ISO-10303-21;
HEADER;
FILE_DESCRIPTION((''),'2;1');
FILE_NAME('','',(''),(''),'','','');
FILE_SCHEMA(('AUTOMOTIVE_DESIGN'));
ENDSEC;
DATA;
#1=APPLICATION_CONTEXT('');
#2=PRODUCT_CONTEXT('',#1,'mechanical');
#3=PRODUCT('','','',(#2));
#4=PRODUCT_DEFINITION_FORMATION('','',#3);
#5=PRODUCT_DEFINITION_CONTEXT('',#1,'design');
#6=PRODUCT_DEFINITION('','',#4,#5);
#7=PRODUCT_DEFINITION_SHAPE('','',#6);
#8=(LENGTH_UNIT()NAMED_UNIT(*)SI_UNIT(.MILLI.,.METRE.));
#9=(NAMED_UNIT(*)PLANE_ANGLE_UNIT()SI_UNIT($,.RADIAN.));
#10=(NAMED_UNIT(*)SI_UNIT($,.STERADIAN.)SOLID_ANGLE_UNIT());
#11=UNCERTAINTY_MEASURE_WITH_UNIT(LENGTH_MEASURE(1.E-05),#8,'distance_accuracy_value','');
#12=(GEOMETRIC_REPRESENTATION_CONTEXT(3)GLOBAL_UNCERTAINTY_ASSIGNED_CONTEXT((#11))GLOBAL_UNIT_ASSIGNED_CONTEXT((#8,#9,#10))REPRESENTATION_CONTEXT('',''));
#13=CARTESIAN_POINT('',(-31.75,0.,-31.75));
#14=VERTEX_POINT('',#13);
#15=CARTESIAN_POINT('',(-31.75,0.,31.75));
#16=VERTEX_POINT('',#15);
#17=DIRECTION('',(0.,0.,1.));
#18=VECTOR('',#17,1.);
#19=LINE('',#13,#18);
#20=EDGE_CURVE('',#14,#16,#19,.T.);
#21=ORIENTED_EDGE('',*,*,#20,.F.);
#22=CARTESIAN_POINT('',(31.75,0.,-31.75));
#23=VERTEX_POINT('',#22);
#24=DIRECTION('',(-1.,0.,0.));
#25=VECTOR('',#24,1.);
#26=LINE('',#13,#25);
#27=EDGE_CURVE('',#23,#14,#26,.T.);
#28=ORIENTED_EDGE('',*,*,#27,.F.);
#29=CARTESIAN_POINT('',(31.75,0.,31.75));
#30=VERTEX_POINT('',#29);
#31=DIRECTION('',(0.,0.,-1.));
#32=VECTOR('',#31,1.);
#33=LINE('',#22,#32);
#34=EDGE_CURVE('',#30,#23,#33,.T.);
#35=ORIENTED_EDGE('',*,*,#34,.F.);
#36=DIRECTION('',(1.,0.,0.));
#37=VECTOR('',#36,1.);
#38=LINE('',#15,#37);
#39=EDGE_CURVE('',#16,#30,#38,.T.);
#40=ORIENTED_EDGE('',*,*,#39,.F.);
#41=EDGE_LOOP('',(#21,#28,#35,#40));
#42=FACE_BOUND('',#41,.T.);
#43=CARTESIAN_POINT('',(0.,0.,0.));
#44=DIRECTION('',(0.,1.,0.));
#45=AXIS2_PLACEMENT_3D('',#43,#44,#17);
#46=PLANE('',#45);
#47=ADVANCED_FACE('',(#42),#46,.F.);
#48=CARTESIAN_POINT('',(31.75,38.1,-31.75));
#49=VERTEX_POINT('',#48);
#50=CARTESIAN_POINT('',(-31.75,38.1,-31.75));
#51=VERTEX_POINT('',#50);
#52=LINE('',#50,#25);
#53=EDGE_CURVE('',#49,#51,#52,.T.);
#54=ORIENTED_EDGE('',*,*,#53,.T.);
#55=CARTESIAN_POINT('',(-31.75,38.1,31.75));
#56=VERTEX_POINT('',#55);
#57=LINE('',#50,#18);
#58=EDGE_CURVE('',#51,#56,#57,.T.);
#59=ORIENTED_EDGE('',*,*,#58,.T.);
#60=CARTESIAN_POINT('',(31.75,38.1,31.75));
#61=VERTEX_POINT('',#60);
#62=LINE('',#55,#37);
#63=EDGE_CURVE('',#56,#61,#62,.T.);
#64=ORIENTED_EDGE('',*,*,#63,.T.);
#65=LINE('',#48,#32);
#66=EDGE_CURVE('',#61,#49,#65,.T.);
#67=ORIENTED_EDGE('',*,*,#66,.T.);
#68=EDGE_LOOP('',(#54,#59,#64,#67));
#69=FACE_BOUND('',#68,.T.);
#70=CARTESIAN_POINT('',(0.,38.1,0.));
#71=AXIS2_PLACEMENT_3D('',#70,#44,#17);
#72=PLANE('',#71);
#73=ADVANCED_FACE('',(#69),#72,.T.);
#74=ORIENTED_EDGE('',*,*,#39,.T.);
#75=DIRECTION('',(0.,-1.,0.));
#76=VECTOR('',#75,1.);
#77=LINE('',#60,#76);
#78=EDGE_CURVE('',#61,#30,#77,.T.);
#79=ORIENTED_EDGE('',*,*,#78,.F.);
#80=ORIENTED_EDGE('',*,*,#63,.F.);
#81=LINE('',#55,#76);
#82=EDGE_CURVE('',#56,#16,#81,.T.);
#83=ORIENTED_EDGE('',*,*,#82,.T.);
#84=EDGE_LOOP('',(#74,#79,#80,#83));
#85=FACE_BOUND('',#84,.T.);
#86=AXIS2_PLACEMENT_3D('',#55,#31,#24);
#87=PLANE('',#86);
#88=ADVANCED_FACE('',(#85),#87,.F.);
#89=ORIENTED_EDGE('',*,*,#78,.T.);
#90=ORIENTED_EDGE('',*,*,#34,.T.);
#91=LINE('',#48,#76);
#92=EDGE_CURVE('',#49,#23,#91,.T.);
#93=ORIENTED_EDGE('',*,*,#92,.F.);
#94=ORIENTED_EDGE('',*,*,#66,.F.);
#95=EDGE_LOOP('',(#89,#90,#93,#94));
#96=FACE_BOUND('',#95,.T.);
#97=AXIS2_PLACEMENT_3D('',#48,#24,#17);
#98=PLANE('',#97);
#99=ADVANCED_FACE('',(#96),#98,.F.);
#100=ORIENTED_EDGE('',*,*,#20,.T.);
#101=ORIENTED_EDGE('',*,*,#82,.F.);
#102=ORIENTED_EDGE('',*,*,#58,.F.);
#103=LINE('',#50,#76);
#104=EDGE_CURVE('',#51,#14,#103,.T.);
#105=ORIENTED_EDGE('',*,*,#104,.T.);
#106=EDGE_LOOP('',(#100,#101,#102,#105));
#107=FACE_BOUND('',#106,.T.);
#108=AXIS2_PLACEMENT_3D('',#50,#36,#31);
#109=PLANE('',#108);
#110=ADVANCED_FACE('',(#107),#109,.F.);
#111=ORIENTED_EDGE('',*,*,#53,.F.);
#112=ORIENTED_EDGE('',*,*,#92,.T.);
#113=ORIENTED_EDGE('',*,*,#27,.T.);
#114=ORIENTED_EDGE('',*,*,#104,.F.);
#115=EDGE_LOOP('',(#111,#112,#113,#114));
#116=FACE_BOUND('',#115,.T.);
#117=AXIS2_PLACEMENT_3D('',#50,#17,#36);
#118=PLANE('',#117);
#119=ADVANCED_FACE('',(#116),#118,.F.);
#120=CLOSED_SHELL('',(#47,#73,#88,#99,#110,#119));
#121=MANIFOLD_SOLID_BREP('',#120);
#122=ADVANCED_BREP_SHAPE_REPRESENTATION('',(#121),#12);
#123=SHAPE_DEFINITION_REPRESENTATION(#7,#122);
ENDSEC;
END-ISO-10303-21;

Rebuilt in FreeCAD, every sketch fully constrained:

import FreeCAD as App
import Part
import Sketcher
Q = App.Units.Quantity


def add_polygon(sketch, points):
    """Adds a closed chain of lines whose ends are joined by coincident constraints."""
    first, n = sketch.GeometryCount, len(points)
    for a, b in zip(points, points[1:] + points[:1]):
        sketch.addGeometry(Part.LineSegment(App.Vector(*a, 0), App.Vector(*b, 0)), False)
    for i in range(n):
        sketch.addConstraint(Sketcher.Constraint("Coincident", first + i, 2, first + (i + 1) % n, 1))

doc = App.newDocument("Part")
body = doc.addObject("PartDesign::Body", "Body")

# Sketch on XZ plane
sketch1 = body.newObject("Sketcher::SketchObject", "Sketch")
sketch1.AttachmentSupport = (doc.getObject("XZ_Plane"), [""])
sketch1.MapMode = "FlatFace"
add_polygon(sketch1, [(-32, -32), (-32, 32), (32, 32), (32, -32)])  # lines 0-3
sketch1.addConstraint(Sketcher.Constraint("Vertical", 0))
sketch1.addConstraint(Sketcher.Constraint("Horizontal", 1))
sketch1.addConstraint(Sketcher.Constraint("Vertical", 2))
sketch1.addConstraint(Sketcher.Constraint("Horizontal", 3))
sketch1.addConstraint(Sketcher.Constraint("Symmetric", 0, 2, 2, 2, -1, 1))
sketch1.addConstraint(Sketcher.Constraint("Equal", 3, 0))
sketch1.addConstraint(Sketcher.Constraint("DistanceX", 1, 1, 1, 2, Q("2.5 in")))
pad1 = body.newObject("PartDesign::Pad", "Pad")
pad1.Profile = sketch1
pad1.Length = Q("1.5 in")
pad1.Reversed = True

doc.recompute()
